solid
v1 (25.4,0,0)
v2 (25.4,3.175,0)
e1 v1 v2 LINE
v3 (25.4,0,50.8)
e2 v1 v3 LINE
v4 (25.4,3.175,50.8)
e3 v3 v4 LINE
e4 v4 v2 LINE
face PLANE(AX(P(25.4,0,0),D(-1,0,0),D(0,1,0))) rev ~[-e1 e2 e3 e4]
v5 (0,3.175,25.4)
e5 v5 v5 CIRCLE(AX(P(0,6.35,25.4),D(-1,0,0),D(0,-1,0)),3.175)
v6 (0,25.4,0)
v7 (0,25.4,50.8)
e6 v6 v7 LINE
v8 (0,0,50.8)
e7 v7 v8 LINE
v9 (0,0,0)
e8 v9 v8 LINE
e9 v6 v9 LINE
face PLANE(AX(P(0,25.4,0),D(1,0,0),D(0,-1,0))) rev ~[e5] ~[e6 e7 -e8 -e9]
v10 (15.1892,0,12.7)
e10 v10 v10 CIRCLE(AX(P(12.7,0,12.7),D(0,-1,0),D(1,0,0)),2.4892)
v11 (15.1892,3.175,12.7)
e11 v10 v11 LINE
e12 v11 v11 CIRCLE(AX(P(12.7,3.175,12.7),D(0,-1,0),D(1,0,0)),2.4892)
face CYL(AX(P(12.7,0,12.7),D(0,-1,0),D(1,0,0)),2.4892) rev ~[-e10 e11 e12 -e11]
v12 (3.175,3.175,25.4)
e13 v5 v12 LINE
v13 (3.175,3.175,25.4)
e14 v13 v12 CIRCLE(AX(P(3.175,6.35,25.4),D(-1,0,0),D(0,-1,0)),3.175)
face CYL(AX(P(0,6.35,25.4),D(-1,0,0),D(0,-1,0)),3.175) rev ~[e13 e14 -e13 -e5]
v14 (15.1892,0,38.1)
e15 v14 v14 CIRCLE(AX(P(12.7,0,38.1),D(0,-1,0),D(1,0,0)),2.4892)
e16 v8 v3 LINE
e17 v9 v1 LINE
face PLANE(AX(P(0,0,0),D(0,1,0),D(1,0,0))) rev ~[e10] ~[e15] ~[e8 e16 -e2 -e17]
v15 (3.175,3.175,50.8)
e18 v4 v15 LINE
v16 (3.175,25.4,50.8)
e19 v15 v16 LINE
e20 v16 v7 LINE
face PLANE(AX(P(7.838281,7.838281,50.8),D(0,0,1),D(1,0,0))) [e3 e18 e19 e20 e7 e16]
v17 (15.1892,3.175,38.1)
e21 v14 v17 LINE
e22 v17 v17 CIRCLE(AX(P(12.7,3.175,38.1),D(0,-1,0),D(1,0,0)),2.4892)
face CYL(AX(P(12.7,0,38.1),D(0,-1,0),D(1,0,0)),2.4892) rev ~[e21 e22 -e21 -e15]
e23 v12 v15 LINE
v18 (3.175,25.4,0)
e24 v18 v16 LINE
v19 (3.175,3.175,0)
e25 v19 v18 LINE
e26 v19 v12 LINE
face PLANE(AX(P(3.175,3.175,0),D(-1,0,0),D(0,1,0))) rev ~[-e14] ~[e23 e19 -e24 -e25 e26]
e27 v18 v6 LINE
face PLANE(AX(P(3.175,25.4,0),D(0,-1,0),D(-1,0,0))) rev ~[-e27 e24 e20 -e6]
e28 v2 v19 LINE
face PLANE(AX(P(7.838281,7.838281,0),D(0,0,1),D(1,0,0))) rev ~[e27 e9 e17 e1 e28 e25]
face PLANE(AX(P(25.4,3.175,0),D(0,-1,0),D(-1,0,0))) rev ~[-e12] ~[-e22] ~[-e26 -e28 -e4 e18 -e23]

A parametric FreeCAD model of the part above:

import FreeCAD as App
import Part
import Sketcher

V = App.Vector
Q = App.Units.Quantity


def add_polygon(sketch, points):
    """Adds a closed chain of lines whose ends are joined by coincident constraints."""
    first, n = sketch.GeometryCount, len(points)
    for a, b in zip(points, points[1:] + points[:1]):
        sketch.addGeometry(Part.LineSegment(App.Vector(*a, 0), App.Vector(*b, 0)), False)
    for i in range(n):
        sketch.addConstraint(Sketcher.Constraint("Coincident", first + i, 2, first + (i + 1) % n, 1))

doc = App.newDocument("Part")
body = doc.addObject("PartDesign::Body", "Body")

sketch1 = doc.addObject("Sketcher::SketchObject", "Sketch")
body.addObject(sketch1)
sketch1.AttachmentSupport = (doc.XY_Plane, [""])
sketch1.MapMode = "FlatFace"
add_polygon(sketch1, [(3.2, 25.4), (0, 25.4), (0, 0), (25.4, 0), (25.4, 3.2), (3.2, 3.2)])
sketch1.addConstraint(Sketcher.Constraint("Horizontal", 0))
sketch1.addConstraint(Sketcher.Constraint("Vertical", 1))
sketch1.addConstraint(Sketcher.Constraint("Horizontal", 2))
sketch1.addConstraint(Sketcher.Constraint("Vertical", 3))
sketch1.addConstraint(Sketcher.Constraint("Horizontal", 4))
sketch1.addConstraint(Sketcher.Constraint("Vertical", 5))
sketch1.addConstraint(Sketcher.Constraint("Coincident", 1, 2, -1, 1))
sketch1.addConstraint(Sketcher.Constraint("Equal", 2, 1))
sketch1.addConstraint(Sketcher.Constraint("Equal", 0, 3))
sketch1.addConstraint(Sketcher.Constraint("DistanceX", 2, 1, 2, 2, Q("1 in")))
sketch1.addConstraint(Sketcher.Constraint("DistanceX", 0, 2, 0, 1, Q("0.125 in")))
pad1 = doc.addObject("PartDesign::Pad", "Pad")
body.addObject(pad1)
pad1.Profile = sketch1
pad1.Length = Q("2 in")

sketch2 = doc.addObject("Sketcher::SketchObject", "Sketch001")
body.addObject(sketch2)
sketch2.AttachmentSupport = (doc.XZ_Plane, [""])
sketch2.MapMode = "FlatFace"
sketch2.addGeometry(Part.Circle(V(12.7, 38.1, 0), V(0, 0, 1), 2.5), False)
sketch2.addGeometry(Part.Circle(V(12.7, 12.7, 0), V(0, 0, 1), 2.5), False)
sketch2.addConstraint(Sketcher.Constraint("Equal", 0, 1))
sketch2.addConstraint(Sketcher.Constraint("Vertical", 0, 3, 1, 3))
sketch2.addConstraint(Sketcher.Constraint("Diameter", 0, Q("0.196 in")))
sketch2.addConstraint(Sketcher.Constraint("DistanceY", 1, 3, 0, 3, Q("1 in")))
sketch2.addConstraint(Sketcher.Constraint("DistanceX", -1, 1, 0, 3, Q("0.5 in")))
sketch2.addConstraint(Sketcher.Constraint("DistanceY", -1, 1, 0, 3, Q("1.5 in")))
pocket1 = doc.addObject("PartDesign::Pocket", "Pocket")
body.addObject(pocket1)
pocket1.Profile = sketch2
pocket1.Type = "ThroughAll"

sketch3 = doc.addObject("Sketcher::SketchObject", "Sketch002")
body.addObject(sketch3)
sketch3.AttachmentSupport = (doc.YZ_Plane, [""])
sketch3.MapMode = "FlatFace"
sketch3.addGeometry(Part.Circle(V(6.3, 25.4, 0), V(0, 0, 1), 3.2), False)
sketch3.addConstraint(Sketcher.Constraint("Diameter", 0, Q("0.25 in")))
sketch3.addConstraint(Sketcher.Constraint("DistanceY", -1, 1, 0, 3, Q("1 in")))
sketch3.addConstraint(Sketcher.Constraint("DistanceX", -1, 1, 0, 3, Q("0.25 in")))
pocket2 = doc.addObject("PartDesign::Pocket", "Pocket001")
body.addObject(pocket2)
pocket2.Profile = sketch3
pocket2.Type = "ThroughAll"
pocket2.Reversed = True

doc.recompute()
